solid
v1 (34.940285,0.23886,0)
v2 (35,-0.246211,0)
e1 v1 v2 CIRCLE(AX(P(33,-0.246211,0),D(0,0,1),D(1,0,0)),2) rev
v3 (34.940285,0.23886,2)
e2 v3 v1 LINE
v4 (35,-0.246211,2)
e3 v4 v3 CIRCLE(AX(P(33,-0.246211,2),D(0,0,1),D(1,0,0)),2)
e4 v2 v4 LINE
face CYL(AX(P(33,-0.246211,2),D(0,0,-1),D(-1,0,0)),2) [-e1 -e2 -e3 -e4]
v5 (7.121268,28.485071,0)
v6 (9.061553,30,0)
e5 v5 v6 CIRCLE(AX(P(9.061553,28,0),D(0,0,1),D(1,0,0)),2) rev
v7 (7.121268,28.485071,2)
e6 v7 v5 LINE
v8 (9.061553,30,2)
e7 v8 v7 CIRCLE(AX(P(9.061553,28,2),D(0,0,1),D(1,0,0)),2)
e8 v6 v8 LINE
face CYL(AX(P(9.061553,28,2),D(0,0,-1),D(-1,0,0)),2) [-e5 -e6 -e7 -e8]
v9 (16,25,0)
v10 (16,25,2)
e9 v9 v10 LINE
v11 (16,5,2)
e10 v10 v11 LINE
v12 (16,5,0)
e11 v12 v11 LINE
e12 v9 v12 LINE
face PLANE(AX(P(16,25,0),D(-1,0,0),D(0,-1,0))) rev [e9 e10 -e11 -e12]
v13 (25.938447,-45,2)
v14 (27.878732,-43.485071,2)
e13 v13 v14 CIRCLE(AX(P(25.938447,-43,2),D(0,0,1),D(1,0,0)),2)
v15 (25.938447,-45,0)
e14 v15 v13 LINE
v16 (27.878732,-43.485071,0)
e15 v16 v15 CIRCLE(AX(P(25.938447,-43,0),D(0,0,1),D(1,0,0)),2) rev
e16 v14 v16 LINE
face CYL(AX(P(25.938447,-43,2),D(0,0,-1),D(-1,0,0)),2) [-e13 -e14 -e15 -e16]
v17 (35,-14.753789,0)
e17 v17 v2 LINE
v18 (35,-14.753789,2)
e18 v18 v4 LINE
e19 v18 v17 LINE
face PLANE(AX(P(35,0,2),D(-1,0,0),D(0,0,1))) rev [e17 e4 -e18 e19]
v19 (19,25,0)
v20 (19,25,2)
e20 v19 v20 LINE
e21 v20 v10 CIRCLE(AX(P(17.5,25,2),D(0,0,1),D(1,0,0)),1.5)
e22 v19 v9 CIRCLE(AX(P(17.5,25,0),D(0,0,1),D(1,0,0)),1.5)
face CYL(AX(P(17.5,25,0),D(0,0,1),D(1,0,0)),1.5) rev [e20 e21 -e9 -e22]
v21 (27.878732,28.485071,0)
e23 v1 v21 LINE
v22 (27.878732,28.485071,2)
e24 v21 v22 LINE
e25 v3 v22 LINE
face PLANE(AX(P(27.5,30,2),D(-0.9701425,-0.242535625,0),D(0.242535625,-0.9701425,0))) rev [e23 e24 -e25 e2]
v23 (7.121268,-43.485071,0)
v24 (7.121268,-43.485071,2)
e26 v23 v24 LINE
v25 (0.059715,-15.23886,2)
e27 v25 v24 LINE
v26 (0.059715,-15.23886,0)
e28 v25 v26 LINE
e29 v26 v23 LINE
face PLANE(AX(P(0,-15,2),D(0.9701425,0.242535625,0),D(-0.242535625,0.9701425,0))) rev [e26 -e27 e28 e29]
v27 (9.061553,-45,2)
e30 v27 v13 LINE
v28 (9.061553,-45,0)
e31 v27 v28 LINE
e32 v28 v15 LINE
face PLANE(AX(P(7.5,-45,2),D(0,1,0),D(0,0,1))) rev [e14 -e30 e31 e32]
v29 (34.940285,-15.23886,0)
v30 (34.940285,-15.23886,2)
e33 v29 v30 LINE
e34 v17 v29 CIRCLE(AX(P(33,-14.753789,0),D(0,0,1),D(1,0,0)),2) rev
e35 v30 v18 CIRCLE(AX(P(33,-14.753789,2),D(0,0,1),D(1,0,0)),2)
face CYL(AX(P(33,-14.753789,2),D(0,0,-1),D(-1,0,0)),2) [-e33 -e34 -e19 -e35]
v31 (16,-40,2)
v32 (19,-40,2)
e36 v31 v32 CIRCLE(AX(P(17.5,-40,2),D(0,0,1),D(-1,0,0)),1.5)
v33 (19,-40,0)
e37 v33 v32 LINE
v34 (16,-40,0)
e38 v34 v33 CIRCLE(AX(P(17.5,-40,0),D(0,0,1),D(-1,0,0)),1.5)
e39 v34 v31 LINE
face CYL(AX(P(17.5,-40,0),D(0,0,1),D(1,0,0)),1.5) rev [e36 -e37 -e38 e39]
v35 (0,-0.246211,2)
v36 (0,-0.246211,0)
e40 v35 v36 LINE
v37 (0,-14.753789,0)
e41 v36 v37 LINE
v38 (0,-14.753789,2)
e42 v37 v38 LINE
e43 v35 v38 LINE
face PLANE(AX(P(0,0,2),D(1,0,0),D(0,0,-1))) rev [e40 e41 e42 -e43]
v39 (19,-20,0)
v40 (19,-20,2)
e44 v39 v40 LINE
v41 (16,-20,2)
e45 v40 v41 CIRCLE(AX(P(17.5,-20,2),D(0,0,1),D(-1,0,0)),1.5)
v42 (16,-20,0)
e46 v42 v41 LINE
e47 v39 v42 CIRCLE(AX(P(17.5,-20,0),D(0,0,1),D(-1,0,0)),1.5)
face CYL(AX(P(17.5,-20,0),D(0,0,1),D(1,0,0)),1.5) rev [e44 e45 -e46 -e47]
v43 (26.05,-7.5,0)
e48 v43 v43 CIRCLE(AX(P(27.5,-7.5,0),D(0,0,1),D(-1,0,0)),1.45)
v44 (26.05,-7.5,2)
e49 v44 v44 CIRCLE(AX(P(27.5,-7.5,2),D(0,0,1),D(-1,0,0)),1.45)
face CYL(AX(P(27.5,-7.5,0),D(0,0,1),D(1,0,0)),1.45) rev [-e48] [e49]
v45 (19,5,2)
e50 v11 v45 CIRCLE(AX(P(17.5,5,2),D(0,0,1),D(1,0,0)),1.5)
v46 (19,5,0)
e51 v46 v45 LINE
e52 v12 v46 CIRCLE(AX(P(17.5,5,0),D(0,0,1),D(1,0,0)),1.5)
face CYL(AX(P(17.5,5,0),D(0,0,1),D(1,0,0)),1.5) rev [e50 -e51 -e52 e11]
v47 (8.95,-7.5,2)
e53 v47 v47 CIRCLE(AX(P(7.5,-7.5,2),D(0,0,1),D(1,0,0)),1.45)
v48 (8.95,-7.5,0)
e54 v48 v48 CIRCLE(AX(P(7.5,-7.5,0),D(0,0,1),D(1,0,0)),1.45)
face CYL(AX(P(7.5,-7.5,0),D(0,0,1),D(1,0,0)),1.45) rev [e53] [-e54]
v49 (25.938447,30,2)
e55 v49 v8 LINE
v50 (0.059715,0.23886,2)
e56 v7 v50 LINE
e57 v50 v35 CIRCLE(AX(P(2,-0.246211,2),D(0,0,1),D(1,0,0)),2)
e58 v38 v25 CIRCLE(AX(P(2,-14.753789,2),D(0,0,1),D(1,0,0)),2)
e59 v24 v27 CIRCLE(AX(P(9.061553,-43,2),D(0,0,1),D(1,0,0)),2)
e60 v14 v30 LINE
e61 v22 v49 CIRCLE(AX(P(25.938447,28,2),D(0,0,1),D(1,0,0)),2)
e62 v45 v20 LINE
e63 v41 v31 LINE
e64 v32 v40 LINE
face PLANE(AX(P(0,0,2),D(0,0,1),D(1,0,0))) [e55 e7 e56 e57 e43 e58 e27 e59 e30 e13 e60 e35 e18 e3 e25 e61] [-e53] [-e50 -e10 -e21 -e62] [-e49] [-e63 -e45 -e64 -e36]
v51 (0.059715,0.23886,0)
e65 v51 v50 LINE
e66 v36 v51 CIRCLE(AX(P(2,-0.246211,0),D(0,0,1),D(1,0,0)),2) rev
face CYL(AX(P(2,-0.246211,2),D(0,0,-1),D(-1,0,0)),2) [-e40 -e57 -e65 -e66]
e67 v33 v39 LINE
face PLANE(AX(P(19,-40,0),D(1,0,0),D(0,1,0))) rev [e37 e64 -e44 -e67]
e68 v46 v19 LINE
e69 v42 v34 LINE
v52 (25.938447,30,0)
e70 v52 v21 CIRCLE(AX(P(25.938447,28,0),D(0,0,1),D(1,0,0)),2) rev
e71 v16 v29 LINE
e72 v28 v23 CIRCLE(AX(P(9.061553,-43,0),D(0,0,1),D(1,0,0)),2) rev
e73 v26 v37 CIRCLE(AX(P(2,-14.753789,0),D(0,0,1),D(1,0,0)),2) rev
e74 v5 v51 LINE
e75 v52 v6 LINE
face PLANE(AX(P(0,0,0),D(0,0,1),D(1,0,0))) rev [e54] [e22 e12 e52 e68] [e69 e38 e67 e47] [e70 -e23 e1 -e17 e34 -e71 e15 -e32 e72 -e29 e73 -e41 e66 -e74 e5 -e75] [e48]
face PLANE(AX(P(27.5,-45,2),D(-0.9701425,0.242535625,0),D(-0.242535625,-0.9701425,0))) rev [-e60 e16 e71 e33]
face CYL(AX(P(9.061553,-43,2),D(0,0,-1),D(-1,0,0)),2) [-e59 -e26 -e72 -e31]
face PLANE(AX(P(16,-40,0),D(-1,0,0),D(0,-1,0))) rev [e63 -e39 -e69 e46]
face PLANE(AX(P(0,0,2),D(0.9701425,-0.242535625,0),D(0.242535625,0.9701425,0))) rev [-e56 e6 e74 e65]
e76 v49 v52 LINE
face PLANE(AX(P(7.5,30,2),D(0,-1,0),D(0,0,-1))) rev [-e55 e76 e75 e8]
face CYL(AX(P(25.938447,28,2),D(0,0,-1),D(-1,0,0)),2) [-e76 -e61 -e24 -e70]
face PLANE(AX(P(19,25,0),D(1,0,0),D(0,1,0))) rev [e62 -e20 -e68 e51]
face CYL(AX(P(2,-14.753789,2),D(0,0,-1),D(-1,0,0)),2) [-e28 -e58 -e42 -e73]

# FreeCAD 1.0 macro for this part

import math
import FreeCAD as App
import Part
import Sketcher

V = App.Vector
Q = App.Units.Quantity


def edges_at(feature, points):
    """Names of the edges that pass closest to the given points."""
    edges = feature.Shape.Edges
    near = lambda p: min(range(len(edges)), key=lambda i: edges[i].distToShape(Part.Vertex(*p))[0])
    return sorted({f"Edge{near(p) + 1}" for p in points})

doc = App.newDocument("Part")
params = doc.addObject("Spreadsheet::Sheet", "Params")
for row, (alias, value) in enumerate([
    ("sketch1_width", "20 mm"),
    ("sketch1_height", "15 mm"),
    ("pad1_length", "2 mm"),
    ("sketch2_diameter", "2.9 mm"),
    ("sketch2_radius", "1.5 mm"),
    ("sketch2_height", "20 mm"),
    ("fillet_radius", "2 mm"),
], start=1):
    params.set(f"A{row}", alias)
    params.set(f"B{row}", "=" + value)
    params.setAlias(f"B{row}", alias)

body = doc.addObject("PartDesign::Body", "Body")

sketch1 = body.newObject("Sketcher::SketchObject", "Sketch")
sketch1.AttachmentSupport = (doc.getObject("XY_Plane"), [""])
sketch1.MapMode = "FlatFace"
sketch1.addGeometry([
    Part.LineSegment(V(7.5, 30, 0), V(0, 0, 0)),
    Part.LineSegment(V(0, 0, 0), V(0, -15, 0)),
    Part.LineSegment(V(0, -15, 0), V(7.5, -45, 0)),
    Part.LineSegment(V(7.5, -45, 0), V(27.5, -45, 0)),
    Part.LineSegment(V(27.5, -45, 0), V(35, -15, 0)),
    Part.LineSegment(V(35, -15, 0), V(35, 0, 0)),
    Part.LineSegment(V(35, 0, 0), V(27.5, 30, 0)),
    Part.LineSegment(V(27.5, 30, 0), V(7.5, 30, 0)),
], False)
sketch1.addConstraint([
    Sketcher.Constraint("Coincident", 0, 2, 1, 1),
    Sketcher.Constraint("Coincident", 1, 2, 2, 1),
    Sketcher.Constraint("Coincident", 2, 2, 3, 1),
    Sketcher.Constraint("Coincident", 3, 2, 4, 1),
    Sketcher.Constraint("Coincident", 4, 2, 5, 1),
    Sketcher.Constraint("Coincident", 5, 2, 6, 1),
    Sketcher.Constraint("Coincident", 6, 2, 7, 1),
    Sketcher.Constraint("Coincident", 7, 2, 0, 1),
    Sketcher.Constraint("Vertical", 1),
    Sketcher.Constraint("Horizontal", 3),
    Sketcher.Constraint("Vertical", 5),
    Sketcher.Constraint("Horizontal", 7),
    Sketcher.Constraint("Coincident", 0, 2, -1, 1),
    Sketcher.Constraint("PointOnObject", 5, 2, -1),
    Sketcher.Constraint("Parallel", 0, 4),
    Sketcher.Constraint("Parallel", 2, 6),
    Sketcher.Constraint("Horizontal", 1, 2, 4, 2),
    Sketcher.Constraint("Vertical", 3, 2, 6, 2),
    Sketcher.Constraint("Vertical", 2, 2, 7, 2),
    Sketcher.Constraint("DistanceX", 3, 1, 3, 2, Q("20 mm")),
    Sketcher.Constraint("DistanceY", 1, 2, 1, 1, Q("15 mm")),
    Sketcher.Constraint("DistanceY", 2, 2, -1, 1, Q("45 mm")),
    Sketcher.Constraint("DistanceX", -1, 1, 4, 2, Q("35 mm")),
])
sketch1.setExpression("Constraints[19]", "Params.sketch1_width")
sketch1.setExpression("Constraints[20]", "Params.sketch1_height")
pad1 = body.newObject("PartDesign::Pad", "Pad")
pad1.Profile = sketch1
pad1.setExpression("Length", "Params.pad1_length")

sketch2 = body.newObject("Sketcher::SketchObject", "Sketch001")
sketch2.AttachmentSupport = (doc.getObject("XY_Plane"), [""])
sketch2.MapMode = "FlatFace"
sketch2.AttachmentOffset = App.Placement(V(0, 0, 2), App.Rotation())
sketch2.addGeometry([
    Part.Circle(V(7.5, -7.5, 0), V(0, 0, 1), 1.45),
    Part.Circle(V(27.5, -7.5, 0), V(0, 0, 1), 1.45),
    Part.LineSegment(V(19, 5, 0), V(19, 25, 0)),
    Part.ArcOfCircle(Part.Circle(V(17.5, 25, 0), V(0, 0, 1), 1.5), math.radians(0), math.radians(180)),
    Part.LineSegment(V(16, 25, 0), V(16, 5, 0)),
    Part.ArcOfCircle(Part.Circle(V(17.5, 5, 0), V(0, 0, 1), 1.5), math.radians(180), math.radians(360)),
    Part.LineSegment(V(19, -40, 0), V(19, -20, 0)),
    Part.ArcOfCircle(Part.Circle(V(17.5, -20, 0), V(0, 0, 1), 1.5), math.radians(0), math.radians(180)),
    Part.LineSegment(V(16, -20, 0), V(16, -40, 0)),
    Part.ArcOfCircle(Part.Circle(V(17.5, -40, 0), V(0, 0, 1), 1.5), math.radians(180), math.radians(360)),
], False)
sketch2.addConstraint([
    Sketcher.Constraint("Tangent", 2, 2, 3, 1),
    Sketcher.Constraint("Tangent", 3, 2, 4, 1),
    Sketcher.Constraint("Tangent", 4, 2, 5, 1),
    Sketcher.Constraint("Tangent", 5, 2, 2, 1),
    Sketcher.Constraint("Tangent", 6, 2, 7, 1),
    Sketcher.Constraint("Tangent", 7, 2, 8, 1),
    Sketcher.Constraint("Tangent", 8, 2, 9, 1),
    Sketcher.Constraint("Tangent", 9, 2, 6, 1),
    Sketcher.Constraint("Vertical", 2),
    Sketcher.Constraint("Vertical", 4),
    Sketcher.Constraint("Vertical", 6),
    Sketcher.Constraint("Vertical", 8),
    Sketcher.Constraint("Equal", 0, 1),
    Sketcher.Constraint("Equal", 5, 7),
    Sketcher.Constraint("Horizontal", 0, 3, 1, 3),
    Sketcher.Constraint("Vertical", 5, 3, 7, 3),
    Sketcher.Constraint("Equal", 4, 6),
    Sketcher.Constraint("Diameter", 0, Q("2.9 mm")),
    Sketcher.Constraint("Radius", 3, Q("1.5 mm")),
    Sketcher.Constraint("DistanceY", 2, 1, 2, 2, Q("20 mm")),
    Sketcher.Constraint("DistanceY", -1, 1, 3, 3, Q("25 mm")),
    Sketcher.Constraint("DistanceY", 7, 3, -1, 1, Q("20 mm")),
    Sketcher.Constraint("DistanceX", -1, 1, 2, 2, Q("19 mm")),
    Sketcher.Constraint("DistanceX", 0, 3, 1, 3, Q("20 mm")),
    Sketcher.Constraint("DistanceX", 0, 3, 3, 3, Q("10 mm")),
    Sketcher.Constraint("DistanceY", 0, 3, -1, 1, Q("7.5 mm")),
])
sketch2.setExpression("Constraints[17]", "Params.sketch2_diameter")
sketch2.setExpression("Constraints[18]", "Params.sketch2_radius")
sketch2.setExpression("Constraints[19]", "Params.sketch2_height")
pocket1 = body.newObject("PartDesign::Pocket", "Pocket")
pocket1.Profile = sketch2
pocket1.Type = "ThroughAll"
doc.recompute()

fillet = body.newObject("PartDesign::Fillet", "Fillet")
fillet.Base = (pocket1, edges_at(pocket1, [
    (0, 0, 1),
    (7.5, 30, 1),
    (27.5, 30, 1),
    (35, 0, 1),
    (35, -15, 1),
    (27.5, -45, 1),
    (7.5, -45, 1),
    (0, -15, 1),
]))
fillet.setExpression("Radius", "Params.fillet_radius")

doc.recompute()
